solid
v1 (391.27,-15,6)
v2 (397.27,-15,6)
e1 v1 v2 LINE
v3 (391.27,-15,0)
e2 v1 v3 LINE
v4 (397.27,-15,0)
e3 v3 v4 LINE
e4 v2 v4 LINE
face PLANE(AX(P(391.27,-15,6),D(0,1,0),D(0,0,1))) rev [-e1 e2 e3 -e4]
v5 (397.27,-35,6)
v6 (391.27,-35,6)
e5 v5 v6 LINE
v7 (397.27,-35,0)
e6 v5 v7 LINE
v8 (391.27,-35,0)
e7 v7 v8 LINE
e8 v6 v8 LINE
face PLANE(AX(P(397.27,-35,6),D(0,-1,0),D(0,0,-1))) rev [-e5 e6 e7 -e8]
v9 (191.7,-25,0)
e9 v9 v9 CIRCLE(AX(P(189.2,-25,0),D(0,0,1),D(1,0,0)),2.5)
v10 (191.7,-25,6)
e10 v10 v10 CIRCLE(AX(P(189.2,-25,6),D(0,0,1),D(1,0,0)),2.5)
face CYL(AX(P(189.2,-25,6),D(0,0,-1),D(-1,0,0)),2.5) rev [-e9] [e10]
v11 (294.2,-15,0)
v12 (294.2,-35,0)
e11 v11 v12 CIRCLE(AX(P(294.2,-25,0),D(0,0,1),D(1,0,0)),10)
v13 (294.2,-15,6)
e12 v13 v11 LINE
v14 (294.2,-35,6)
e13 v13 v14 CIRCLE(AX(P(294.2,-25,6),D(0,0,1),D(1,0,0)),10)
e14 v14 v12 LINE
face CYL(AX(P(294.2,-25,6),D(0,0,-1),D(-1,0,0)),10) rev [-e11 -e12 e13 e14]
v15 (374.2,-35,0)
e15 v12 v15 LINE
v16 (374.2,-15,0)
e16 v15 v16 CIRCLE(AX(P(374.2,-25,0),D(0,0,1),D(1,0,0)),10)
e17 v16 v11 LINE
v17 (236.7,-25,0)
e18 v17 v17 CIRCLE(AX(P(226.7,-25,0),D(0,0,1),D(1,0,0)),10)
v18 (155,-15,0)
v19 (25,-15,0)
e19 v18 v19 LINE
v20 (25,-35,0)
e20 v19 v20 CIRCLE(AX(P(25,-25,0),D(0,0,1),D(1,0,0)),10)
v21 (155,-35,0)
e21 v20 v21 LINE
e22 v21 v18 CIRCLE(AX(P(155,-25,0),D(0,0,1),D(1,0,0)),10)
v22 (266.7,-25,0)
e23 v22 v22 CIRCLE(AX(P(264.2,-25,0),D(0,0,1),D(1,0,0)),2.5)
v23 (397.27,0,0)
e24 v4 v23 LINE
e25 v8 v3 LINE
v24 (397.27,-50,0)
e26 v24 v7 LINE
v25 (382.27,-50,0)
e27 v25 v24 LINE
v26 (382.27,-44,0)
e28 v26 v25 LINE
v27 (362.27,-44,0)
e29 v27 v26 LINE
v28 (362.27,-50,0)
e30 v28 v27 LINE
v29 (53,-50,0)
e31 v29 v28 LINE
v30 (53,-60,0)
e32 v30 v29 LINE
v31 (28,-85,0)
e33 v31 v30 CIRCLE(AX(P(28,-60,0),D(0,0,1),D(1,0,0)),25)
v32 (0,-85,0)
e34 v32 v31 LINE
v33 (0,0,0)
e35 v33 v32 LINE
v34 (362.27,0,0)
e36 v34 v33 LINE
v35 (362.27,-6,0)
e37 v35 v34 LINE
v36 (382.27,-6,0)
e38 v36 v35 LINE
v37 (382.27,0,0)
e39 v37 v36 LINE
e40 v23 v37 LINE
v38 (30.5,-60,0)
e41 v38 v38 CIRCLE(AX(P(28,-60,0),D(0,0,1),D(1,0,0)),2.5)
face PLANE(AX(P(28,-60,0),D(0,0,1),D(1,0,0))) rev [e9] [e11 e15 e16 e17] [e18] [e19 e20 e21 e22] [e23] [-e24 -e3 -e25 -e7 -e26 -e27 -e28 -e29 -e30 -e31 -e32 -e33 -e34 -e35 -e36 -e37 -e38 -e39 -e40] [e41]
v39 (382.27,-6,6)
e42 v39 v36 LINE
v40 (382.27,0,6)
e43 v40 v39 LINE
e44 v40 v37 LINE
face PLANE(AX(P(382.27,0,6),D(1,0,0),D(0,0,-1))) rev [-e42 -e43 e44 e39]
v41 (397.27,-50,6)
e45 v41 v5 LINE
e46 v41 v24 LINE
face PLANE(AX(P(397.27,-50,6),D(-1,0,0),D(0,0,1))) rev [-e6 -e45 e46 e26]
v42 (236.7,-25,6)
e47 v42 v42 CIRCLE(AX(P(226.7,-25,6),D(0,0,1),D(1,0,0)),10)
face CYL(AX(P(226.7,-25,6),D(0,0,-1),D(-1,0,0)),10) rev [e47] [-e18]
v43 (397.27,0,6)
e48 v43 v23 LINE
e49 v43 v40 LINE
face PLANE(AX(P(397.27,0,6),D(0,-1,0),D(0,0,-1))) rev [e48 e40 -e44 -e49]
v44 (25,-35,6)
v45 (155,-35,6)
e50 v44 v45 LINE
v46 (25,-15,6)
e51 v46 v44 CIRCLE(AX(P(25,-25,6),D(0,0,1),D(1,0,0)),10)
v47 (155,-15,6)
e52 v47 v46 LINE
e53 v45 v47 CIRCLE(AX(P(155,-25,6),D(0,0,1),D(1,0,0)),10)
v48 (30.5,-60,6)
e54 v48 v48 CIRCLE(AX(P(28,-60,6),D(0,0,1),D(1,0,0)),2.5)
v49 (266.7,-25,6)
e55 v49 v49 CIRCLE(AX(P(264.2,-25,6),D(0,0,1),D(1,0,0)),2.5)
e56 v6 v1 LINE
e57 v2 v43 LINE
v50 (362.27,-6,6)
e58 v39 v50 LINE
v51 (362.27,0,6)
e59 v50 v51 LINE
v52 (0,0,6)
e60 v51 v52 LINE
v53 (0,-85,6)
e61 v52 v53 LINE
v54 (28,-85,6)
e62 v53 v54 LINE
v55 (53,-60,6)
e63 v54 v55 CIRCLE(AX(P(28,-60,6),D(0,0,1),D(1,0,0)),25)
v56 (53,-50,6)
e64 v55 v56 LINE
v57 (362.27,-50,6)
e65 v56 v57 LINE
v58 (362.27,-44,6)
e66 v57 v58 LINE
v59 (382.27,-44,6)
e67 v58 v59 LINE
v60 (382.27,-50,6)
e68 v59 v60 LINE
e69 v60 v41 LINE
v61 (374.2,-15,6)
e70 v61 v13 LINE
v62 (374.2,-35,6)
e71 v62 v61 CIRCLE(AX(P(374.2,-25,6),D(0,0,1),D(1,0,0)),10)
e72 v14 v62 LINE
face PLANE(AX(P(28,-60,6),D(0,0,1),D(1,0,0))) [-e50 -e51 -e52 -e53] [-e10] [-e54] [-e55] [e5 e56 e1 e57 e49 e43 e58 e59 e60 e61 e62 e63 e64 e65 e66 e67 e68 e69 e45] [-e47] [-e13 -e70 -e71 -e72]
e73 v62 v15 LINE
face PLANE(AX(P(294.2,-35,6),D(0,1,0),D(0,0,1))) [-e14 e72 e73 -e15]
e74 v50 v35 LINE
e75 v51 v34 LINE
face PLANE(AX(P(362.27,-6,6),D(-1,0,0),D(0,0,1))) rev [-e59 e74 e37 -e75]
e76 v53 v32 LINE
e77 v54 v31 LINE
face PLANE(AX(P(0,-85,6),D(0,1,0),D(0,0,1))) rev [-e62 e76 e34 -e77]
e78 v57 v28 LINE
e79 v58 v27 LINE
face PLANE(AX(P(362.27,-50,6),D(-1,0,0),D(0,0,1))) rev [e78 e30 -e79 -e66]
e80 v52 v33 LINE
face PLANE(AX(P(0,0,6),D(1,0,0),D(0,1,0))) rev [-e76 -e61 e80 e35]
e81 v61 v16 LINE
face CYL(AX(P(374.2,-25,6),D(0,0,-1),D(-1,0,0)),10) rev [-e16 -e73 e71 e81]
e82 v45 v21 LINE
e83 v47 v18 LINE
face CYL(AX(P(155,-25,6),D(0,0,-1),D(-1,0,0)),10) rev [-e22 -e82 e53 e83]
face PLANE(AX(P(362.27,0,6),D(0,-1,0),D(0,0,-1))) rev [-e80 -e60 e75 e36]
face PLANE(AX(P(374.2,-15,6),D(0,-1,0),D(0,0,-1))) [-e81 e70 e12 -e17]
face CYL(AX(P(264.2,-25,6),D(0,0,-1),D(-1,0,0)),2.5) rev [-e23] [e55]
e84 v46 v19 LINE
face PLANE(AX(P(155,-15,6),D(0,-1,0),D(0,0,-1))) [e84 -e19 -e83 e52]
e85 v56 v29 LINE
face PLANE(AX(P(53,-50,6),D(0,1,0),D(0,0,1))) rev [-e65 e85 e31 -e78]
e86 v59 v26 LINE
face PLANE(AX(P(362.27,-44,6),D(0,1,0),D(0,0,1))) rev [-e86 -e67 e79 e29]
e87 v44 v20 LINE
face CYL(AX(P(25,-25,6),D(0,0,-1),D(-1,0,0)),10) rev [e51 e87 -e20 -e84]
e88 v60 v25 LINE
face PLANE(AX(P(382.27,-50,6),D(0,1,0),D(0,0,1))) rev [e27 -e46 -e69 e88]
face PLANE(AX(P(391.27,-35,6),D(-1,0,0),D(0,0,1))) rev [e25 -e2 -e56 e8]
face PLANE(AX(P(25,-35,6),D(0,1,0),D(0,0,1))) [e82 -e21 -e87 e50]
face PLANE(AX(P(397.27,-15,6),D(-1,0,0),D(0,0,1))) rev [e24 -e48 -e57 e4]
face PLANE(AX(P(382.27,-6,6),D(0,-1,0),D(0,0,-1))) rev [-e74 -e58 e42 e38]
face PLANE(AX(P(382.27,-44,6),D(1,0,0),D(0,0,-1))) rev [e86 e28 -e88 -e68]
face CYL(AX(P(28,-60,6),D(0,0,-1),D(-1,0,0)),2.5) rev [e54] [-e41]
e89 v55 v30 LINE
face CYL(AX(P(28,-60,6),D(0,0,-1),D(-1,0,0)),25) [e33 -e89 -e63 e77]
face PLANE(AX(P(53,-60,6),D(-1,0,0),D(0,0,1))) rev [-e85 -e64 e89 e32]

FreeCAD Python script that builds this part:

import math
import FreeCAD as App
import Part
import Sketcher
Q = App.Units.Quantity

doc = App.newDocument("Part")
body = doc.addObject("PartDesign::Body", "Body")

# Sketch on XY plane
sketch1 = doc.addObject("Sketcher::SketchObject", "Sketch")
body.addObject(sketch1)
sketch1.AttachmentSupport = (doc.XY_Plane, [""])
sketch1.MapMode = "FlatFace"
sketch1.addGeometry(Part.LineSegment(App.Vector(397.27, -50, 0), App.Vector(397.27, -35, 0)), False)
sketch1.addGeometry(Part.LineSegment(App.Vector(397.27, -35, 0), App.Vector(391.27, -35, 0)), False)
sketch1.addGeometry(Part.LineSegment(App.Vector(391.27, -35, 0), App.Vector(391.27, -15, 0)), False)
sketch1.addGeometry(Part.LineSegment(App.Vector(391.27, -15, 0), App.Vector(397.27, -15, 0)), False)
sketch1.addGeometry(Part.LineSegment(App.Vector(397.27, -15, 0), App.Vector(397.27, 0, 0)), False)
sketch1.addGeometry(Part.LineSegment(App.Vector(397.27, 0, 0), App.Vector(382.27, 0, 0)), False)
sketch1.addGeometry(Part.LineSegment(App.Vector(382.27, 0, 0), App.Vector(382.27, -6, 0)), False)
sketch1.addGeometry(Part.LineSegment(App.Vector(382.27, -6, 0), App.Vector(362.27, -6, 0)), False)
sketch1.addGeometry(Part.LineSegment(App.Vector(362.27, -6, 0), App.Vector(362.27, 0, 0)), False)
sketch1.addGeometry(Part.LineSegment(App.Vector(362.27, 0, 0), App.Vector(0, 0, 0)), False)
sketch1.addGeometry(Part.LineSegment(App.Vector(0, 0, 0), App.Vector(0, -85, 0)), False)
sketch1.addGeometry(Part.LineSegment(App.Vector(0, -85, 0), App.Vector(28, -85, 0)), False)
sketch1.addGeometry(Part.ArcOfCircle(Part.Circle(App.Vector(28, -60, 0), App.Vector(0, 0, 1), 25), math.radians(-90), math.radians(0)), False)
sketch1.addGeometry(Part.LineSegment(App.Vector(53, -60, 0), App.Vector(53, -50, 0)), False)
sketch1.addGeometry(Part.LineSegment(App.Vector(53, -50, 0), App.Vector(362.27, -50, 0)), False)
sketch1.addGeometry(Part.LineSegment(App.Vector(362.27, -50, 0), App.Vector(362.27, -44, 0)), False)
sketch1.addGeometry(Part.LineSegment(App.Vector(362.27, -44, 0), App.Vector(382.27, -44, 0)), False)
sketch1.addGeometry(Part.LineSegment(App.Vector(382.27, -44, 0), App.Vector(382.27, -50, 0)), False)
sketch1.addGeometry(Part.LineSegment(App.Vector(382.27, -50, 0), App.Vector(397.27, -50, 0)), False)
sketch1.addGeometry(Part.Circle(App.Vector(28, -60, 0), App.Vector(0, 0, 1), 2.5), False)
sketch1.addGeometry(Part.LineSegment(App.Vector(155, -35, 0), App.Vector(25, -35, 0)), False)
sketch1.addGeometry(Part.ArcOfCircle(Part.Circle(App.Vector(25, -25, 0), App.Vector(0, 0, 1), 10), math.radians(90), math.radians(270)), False)
sketch1.addGeometry(Part.LineSegment(App.Vector(25, -15, 0), App.Vector(155, -15, 0)), False)
sketch1.addGeometry(Part.ArcOfCircle(Part.Circle(App.Vector(155, -25, 0), App.Vector(0, 0, 1), 10), math.radians(-90), math.radians(90)), False)
sketch1.addGeometry(Part.Circle(App.Vector(189.2, -25, 0), App.Vector(0, 0, 1), 2.5), False)
sketch1.addGeometry(Part.Circle(App.Vector(226.7, -25, 0), App.Vector(0, 0, 1), 10), False)
sketch1.addGeometry(Part.Circle(App.Vector(264.2, -25, 0), App.Vector(0, 0, 1), 2.5), False)
sketch1.addGeometry(Part.LineSegment(App.Vector(374.2, -35, 0), App.Vector(294.2, -35, 0)), False)
sketch1.addGeometry(Part.ArcOfCircle(Part.Circle(App.Vector(294.2, -25, 0), App.Vector(0, 0, 1), 10), math.radians(90), math.radians(270)), False)
sketch1.addGeometry(Part.LineSegment(App.Vector(294.2, -15, 0), App.Vector(374.2, -15, 0)), False)
sketch1.addGeometry(Part.ArcOfCircle(Part.Circle(App.Vector(374.2, -25, 0), App.Vector(0, 0, 1), 10), math.radians(-90), math.radians(90)), False)
sketch1.addConstraint(Sketcher.Constraint("Coincident", 0, 2, 1, 1))
sketch1.addConstraint(Sketcher.Constraint("Coincident", 1, 2, 2, 1))
sketch1.addConstraint(Sketcher.Constraint("Coincident", 2, 2, 3, 1))
sketch1.addConstraint(Sketcher.Constraint("Coincident", 3, 2, 4, 1))
sketch1.addConstraint(Sketcher.Constraint("Coincident", 4, 2, 5, 1))
sketch1.addConstraint(Sketcher.Constraint("Coincident", 5, 2, 6, 1))
sketch1.addConstraint(Sketcher.Constraint("Coincident", 6, 2, 7, 1))
sketch1.addConstraint(Sketcher.Constraint("Coincident", 7, 2, 8, 1))
sketch1.addConstraint(Sketcher.Constraint("Coincident", 8, 2, 9, 1))
sketch1.addConstraint(Sketcher.Constraint("Coincident", 9, 2, 10, 1))
sketch1.addConstraint(Sketcher.Constraint("Coincident", 10, 2, 11, 1))
sketch1.addConstraint(Sketcher.Constraint("Tangent", 11, 2, 12, 1))
sketch1.addConstraint(Sketcher.Constraint("Tangent", 12, 2, 13, 1))
sketch1.addConstraint(Sketcher.Constraint("Coincident", 13, 2, 14, 1))
sketch1.addConstraint(Sketcher.Constraint("Coincident", 14, 2, 15, 1))
sketch1.addConstraint(Sketcher.Constraint("Coincident", 15, 2, 16, 1))
sketch1.addConstraint(Sketcher.Constraint("Coincident", 16, 2, 17, 1))
sketch1.addConstraint(Sketcher.Constraint("Coincident", 17, 2, 18, 1))
sketch1.addConstraint(Sketcher.Constraint("Coincident", 18, 2, 0, 1))
sketch1.addConstraint(Sketcher.Constraint("Tangent", 20, 2, 21, 2))
sketch1.addConstraint(Sketcher.Constraint("Tangent", 21, 1, 22, 1))
sketch1.addConstraint(Sketcher.Constraint("Tangent", 22, 2, 23, 2))
sketch1.addConstraint(Sketcher.Constraint("Tangent", 23, 1, 20, 1))
sketch1.addConstraint(Sketcher.Constraint("Tangent", 27, 2, 28, 2))
sketch1.addConstraint(Sketcher.Constraint("Tangent", 28, 1, 29, 1))
sketch1.addConstraint(Sketcher.Constraint("Tangent", 29, 2, 30, 2))
sketch1.addConstraint(Sketcher.Constraint("Tangent", 30, 1, 27, 1))
sketch1.addConstraint(Sketcher.Constraint("Vertical", 0))
sketch1.addConstraint(Sketcher.Constraint("Horizontal", 1))
sketch1.addConstraint(Sketcher.Constraint("Vertical", 2))
sketch1.addConstraint(Sketcher.Constraint("Horizontal", 3))
sketch1.addConstraint(Sketcher.Constraint("Vertical", 4))
sketch1.addConstraint(Sketcher.Constraint("Horizontal", 5))
sketch1.addConstraint(Sketcher.Constraint("Vertical", 6))
sketch1.addConstraint(Sketcher.Constraint("Horizontal", 7))
sketch1.addConstraint(Sketcher.Constraint("Vertical", 8))
sketch1.addConstraint(Sketcher.Constraint("Horizontal", 9))
sketch1.addConstraint(Sketcher.Constraint("Vertical", 10))
sketch1.addConstraint(Sketcher.Constraint("Horizontal", 11))
sketch1.addConstraint(Sketcher.Constraint("Vertical", 13))
sketch1.addConstraint(Sketcher.Constraint("Horizontal", 14))
sketch1.addConstraint(Sketcher.Constraint("Vertical", 15))
sketch1.addConstraint(Sketcher.Constraint("Horizontal", 16))
sketch1.addConstraint(Sketcher.Constraint("Vertical", 17))
sketch1.addConstraint(Sketcher.Constraint("Horizontal", 18))
sketch1.addConstraint(Sketcher.Constraint("Horizontal", 20))
sketch1.addConstraint(Sketcher.Constraint("Horizontal", 22))
sketch1.addConstraint(Sketcher.Constraint("Horizontal", 27))
sketch1.addConstraint(Sketcher.Constraint("Horizontal", 29))
sketch1.addConstraint(Sketcher.Constraint("Coincident", 9, 2, -1, 1))
sketch1.addConstraint(Sketcher.Constraint("Coincident", 19, 3, 12, 3))
sketch1.addConstraint(Sketcher.Constraint("Equal", 19, 24))
sketch1.addConstraint(Sketcher.Constraint("Equal", 23, 25))
sketch1.addConstraint(Sketcher.Constraint("Equal", 24, 26))
sketch1.addConstraint(Sketcher.Constraint("Equal", 25, 28))
sketch1.addConstraint(Sketcher.Constraint("PointOnObject", 4, 2, -1))
sketch1.addConstraint(Sketcher.Constraint("Horizontal", 23, 3, 24, 3))
sketch1.addConstraint(Sketcher.Constraint("Horizontal", 24, 3, 25, 3))
sketch1.addConstraint(Sketcher.Constraint("Horizontal", 25, 3, 26, 3))
sketch1.addConstraint(Sketcher.Constraint("Horizontal", 26, 3, 28, 3))
sketch1.addConstraint(Sketcher.Constraint("Horizontal", 14, 2, 17, 2))
sketch1.addConstraint(Sketcher.Constraint("Horizontal", 1, 2, 20, 2))
sketch1.addConstraint(Sketcher.Constraint("Horizontal", 3, 2, 21, 1))
sketch1.addConstraint(Sketcher.Constraint("Vertical", 0, 2, 3, 2))
sketch1.addConstraint(Sketcher.Constraint("Vertical", 8, 2, 14, 2))
sketch1.addConstraint(Sketcher.Constraint("Vertical", 6, 2, 16, 2))
sketch1.addConstraint(Sketcher.Constraint("Equal", 18, 0))
sketch1.addConstraint(Sketcher.Constraint("Equal", 16, 2))
sketch1.addConstraint(Sketcher.Constraint("Equal", 0, 4))
sketch1.addConstraint(Sketcher.Constraint("Equal", 3, 6))
sketch1.addConstraint(Sketcher.Constraint("Equal", 8, 15))
sketch1.addConstraint(Sketcher.Constraint("Diameter", 19, Q("5 mm")))
sketch1.addConstraint(Sketcher.Constraint("Diameter", 25, Q("20 mm")))
sketch1.addConstraint(Sketcher.Constraint("Radius", 12, Q("25 mm")))
sketch1.addConstraint(Sketcher.Constraint("DistanceX", 1, 2, 1, 1, Q("6 mm")))
sketch1.addConstraint(Sketcher.Constraint("DistanceX", 5, 2, 5, 1, Q("15 mm")))
sketch1.addConstraint(Sketcher.Constraint("DistanceX", 11, 1, 11, 2, Q("28 mm")))
sketch1.addConstraint(Sketcher.Constraint("DistanceX", 20, 2, 20, 1, Q("130 mm")))
sketch1.addConstraint(Sketcher.Constraint("DistanceX", 27, 2, 27, 1, Q("80 mm")))
sketch1.addConstraint(Sketcher.Constraint("DistanceY", 10, 2, 10, 1, Q("85 mm")))
sketch1.addConstraint(Sketcher.Constraint("DistanceX", -1, 1, 21, 3, Q("25 mm")))
sketch1.addConstraint(Sketcher.Constraint("DistanceX", 24, 3, 26, 3, Q("75 mm")))
sketch1.addConstraint(Sketcher.Constraint("DistanceX", 26, 3, 28, 3, Q("30 mm")))
sketch1.addConstraint(Sketcher.Constraint("DistanceX", 9, 2, 9, 1, Q("362.27 mm")))
sketch1.addConstraint(Sketcher.Constraint("DistanceX", -1, 1, 24, 3, Q("189.2 mm")))
sketch1.addConstraint(Sketcher.Constraint("DistanceX", -1, 1, 25, 3, Q("226.7 mm")))
pad1 = doc.addObject("PartDesign::Pad", "Pad")
body.addObject(pad1)
pad1.Profile = sketch1
pad1.Length = 6

doc.recompute()
